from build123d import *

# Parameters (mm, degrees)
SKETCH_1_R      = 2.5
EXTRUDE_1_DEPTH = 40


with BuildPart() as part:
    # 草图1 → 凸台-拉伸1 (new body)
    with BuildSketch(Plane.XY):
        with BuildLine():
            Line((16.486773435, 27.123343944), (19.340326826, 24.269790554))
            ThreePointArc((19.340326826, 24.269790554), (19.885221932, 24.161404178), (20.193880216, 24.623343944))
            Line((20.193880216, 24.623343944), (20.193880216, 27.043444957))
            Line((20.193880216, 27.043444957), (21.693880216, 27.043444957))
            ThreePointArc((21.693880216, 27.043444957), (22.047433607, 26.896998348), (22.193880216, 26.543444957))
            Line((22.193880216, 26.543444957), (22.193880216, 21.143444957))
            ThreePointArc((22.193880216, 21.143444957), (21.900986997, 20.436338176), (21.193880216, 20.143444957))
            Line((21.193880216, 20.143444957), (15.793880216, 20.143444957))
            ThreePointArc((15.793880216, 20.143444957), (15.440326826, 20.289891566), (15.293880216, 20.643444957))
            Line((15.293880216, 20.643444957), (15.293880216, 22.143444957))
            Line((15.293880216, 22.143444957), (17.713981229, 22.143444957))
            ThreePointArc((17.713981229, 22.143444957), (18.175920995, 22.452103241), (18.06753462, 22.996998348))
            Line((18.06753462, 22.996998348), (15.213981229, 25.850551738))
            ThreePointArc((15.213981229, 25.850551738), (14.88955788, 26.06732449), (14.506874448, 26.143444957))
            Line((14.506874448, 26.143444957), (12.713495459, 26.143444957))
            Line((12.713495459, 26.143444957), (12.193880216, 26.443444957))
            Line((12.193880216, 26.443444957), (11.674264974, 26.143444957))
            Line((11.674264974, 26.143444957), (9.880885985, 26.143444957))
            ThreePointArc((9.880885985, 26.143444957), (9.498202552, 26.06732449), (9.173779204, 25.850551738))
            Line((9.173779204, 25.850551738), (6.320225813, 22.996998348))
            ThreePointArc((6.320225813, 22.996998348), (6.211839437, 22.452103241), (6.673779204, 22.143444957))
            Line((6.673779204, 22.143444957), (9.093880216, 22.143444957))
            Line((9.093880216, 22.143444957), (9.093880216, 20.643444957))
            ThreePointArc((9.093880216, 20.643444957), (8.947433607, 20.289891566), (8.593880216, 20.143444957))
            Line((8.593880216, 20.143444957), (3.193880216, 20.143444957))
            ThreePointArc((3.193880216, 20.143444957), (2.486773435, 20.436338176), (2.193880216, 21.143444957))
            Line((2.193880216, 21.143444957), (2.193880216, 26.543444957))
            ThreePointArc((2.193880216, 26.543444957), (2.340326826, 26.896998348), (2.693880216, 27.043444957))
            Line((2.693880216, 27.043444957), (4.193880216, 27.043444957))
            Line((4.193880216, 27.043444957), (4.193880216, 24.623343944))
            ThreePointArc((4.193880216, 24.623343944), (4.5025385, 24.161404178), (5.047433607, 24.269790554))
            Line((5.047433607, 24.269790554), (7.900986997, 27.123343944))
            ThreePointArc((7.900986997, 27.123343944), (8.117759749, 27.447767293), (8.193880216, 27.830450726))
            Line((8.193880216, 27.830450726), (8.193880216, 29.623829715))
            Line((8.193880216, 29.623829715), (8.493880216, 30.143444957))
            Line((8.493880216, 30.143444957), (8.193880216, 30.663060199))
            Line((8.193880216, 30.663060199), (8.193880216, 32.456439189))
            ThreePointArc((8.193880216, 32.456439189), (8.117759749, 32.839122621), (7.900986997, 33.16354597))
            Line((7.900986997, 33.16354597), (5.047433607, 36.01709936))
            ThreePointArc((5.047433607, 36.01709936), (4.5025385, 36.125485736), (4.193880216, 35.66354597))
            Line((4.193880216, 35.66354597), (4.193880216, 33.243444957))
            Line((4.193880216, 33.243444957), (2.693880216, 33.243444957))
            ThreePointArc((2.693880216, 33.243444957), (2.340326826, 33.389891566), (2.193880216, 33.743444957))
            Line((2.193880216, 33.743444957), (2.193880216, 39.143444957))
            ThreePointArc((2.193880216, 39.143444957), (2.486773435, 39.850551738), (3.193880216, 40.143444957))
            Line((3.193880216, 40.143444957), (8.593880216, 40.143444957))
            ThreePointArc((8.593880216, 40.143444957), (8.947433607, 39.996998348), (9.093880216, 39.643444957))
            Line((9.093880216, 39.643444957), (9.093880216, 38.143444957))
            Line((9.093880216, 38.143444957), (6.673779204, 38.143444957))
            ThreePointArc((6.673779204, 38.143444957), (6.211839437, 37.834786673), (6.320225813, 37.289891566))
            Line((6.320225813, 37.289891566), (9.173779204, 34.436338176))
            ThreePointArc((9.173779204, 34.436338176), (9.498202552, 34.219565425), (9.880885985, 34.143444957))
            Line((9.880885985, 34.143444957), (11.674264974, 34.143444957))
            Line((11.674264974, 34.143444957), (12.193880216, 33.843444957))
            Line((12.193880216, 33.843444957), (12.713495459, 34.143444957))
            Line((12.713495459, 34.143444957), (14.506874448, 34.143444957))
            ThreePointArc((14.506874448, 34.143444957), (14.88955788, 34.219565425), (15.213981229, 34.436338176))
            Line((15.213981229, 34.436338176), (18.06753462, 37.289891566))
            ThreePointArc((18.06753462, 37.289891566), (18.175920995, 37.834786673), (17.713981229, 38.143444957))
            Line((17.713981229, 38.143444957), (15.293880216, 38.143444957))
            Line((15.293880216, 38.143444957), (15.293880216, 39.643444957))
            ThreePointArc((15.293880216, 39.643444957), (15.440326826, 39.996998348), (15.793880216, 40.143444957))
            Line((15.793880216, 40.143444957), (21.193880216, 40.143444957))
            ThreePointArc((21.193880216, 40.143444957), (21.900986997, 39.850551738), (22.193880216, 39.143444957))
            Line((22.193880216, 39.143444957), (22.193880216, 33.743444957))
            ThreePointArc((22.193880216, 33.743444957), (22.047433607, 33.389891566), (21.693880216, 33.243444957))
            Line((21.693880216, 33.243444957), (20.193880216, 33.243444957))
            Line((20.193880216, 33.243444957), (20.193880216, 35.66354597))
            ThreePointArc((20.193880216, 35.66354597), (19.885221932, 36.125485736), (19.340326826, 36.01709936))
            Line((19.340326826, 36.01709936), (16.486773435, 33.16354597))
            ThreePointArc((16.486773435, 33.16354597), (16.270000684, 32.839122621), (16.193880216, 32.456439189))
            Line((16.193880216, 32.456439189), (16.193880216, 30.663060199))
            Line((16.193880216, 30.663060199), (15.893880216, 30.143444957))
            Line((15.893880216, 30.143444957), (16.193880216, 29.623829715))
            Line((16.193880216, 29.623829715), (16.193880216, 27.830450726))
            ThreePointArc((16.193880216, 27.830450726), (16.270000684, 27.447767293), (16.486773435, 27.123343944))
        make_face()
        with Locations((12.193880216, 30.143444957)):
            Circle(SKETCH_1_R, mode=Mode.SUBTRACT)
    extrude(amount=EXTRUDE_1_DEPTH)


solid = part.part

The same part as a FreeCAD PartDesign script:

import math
import FreeCAD as App
import Part
import Sketcher

V = App.Vector
Q = App.Units.Quantity

doc = App.newDocument("Part")
body = doc.addObject("PartDesign::Body", "Body")

sketch1 = body.newObject("Sketcher::SketchObject", "Sketch")
sketch1.AttachmentSupport = (doc.getObject("XY_Plane"), [""])
sketch1.MapMode = "FlatFace"
sketch1.addGeometry([
    Part.LineSegment(V(19.34, 24.27, 0), V(16.49, 27.12, 0)),
    Part.ArcOfCircle(Part.Circle(V(17.19, 27.83, 0), V(0, 0, 1), 1), math.radians(-180), math.radians(-135)),
    Part.LineSegment(V(16.19, 27.83, 0), V(16.19, 29.62, 0)),
    Part.LineSegment(V(16.19, 29.62, 0), V(15.89, 30.14, 0)),
    Part.LineSegment(V(15.89, 30.14, 0), V(16.19, 30.66, 0)),
    Part.LineSegment(V(16.19, 30.66, 0), V(16.19, 32.46, 0)),
    Part.ArcOfCircle(Part.Circle(V(17.19, 32.46, 0), V(0, 0, 1), 1), math.radians(135), math.radians(180)),
    Part.LineSegment(V(16.49, 33.16, 0), V(19.34, 36.02, 0)),
    Part.ArcOfCircle(Part.Circle(V(19.69, 35.66, 0), V(0, 0, 1), 0.5), math.radians(0), math.radians(135)),
    Part.LineSegment(V(20.19, 35.66, 0), V(20.19, 33.24, 0)),
    Part.LineSegment(V(20.19, 33.24, 0), V(21.69, 33.24, 0)),
    Part.ArcOfCircle(Part.Circle(V(21.69, 33.74, 0), V(0, 0, 1), 0.5), math.radians(-90), math.radians(0)),
    Part.LineSegment(V(22.19, 33.74, 0), V(22.19, 39.14, 0)),
    Part.ArcOfCircle(Part.Circle(V(21.19, 39.14, 0), V(0, 0, 1), 1), math.radians(0), math.radians(90)),
    Part.LineSegment(V(21.19, 40.14, 0), V(15.79, 40.14, 0)),
    Part.ArcOfCircle(Part.Circle(V(15.79, 39.64, 0), V(0, 0, 1), 0.5), math.radians(90), math.radians(180)),
    Part.LineSegment(V(15.29, 39.64, 0), V(15.29, 38.14, 0)),
    Part.LineSegment(V(15.29, 38.14, 0), V(17.71, 38.14, 0)),
    Part.ArcOfCircle(Part.Circle(V(17.71, 37.64, 0), V(0, 0, 1), 0.5), math.radians(-45), math.radians(90)),
    Part.LineSegment(V(18.07, 37.29, 0), V(15.21, 34.44, 0)),
    Part.ArcOfCircle(Part.Circle(V(14.51, 35.14, 0), V(0, 0, 1), 1), math.radians(-90), math.radians(-45)),
    Part.LineSegment(V(14.51, 34.14, 0), V(12.71, 34.14, 0)),
    Part.LineSegment(V(12.71, 34.14, 0), V(12.19, 33.84, 0)),
    Part.LineSegment(V(12.19, 33.84, 0), V(11.67, 34.14, 0)),
    Part.LineSegment(V(11.67, 34.14, 0), V(9.88, 34.14, 0)),
    Part.ArcOfCircle(Part.Circle(V(9.88, 35.14, 0), V(0, 0, 1), 1), math.radians(-135), math.radians(-90)),
    Part.LineSegment(V(9.17, 34.44, 0), V(6.32, 37.29, 0)),
    Part.ArcOfCircle(Part.Circle(V(6.67, 37.64, 0), V(0, 0, 1), 0.5), math.radians(90), math.radians(225)),
    Part.LineSegment(V(6.67, 38.14, 0), V(9.09, 38.14, 0)),
    Part.LineSegment(V(9.09, 38.14, 0), V(9.09, 39.64, 0)),
    Part.ArcOfCircle(Part.Circle(V(8.59, 39.64, 0), V(0, 0, 1), 0.5), math.radians(0), math.radians(90)),
    Part.LineSegment(V(8.59, 40.14, 0), V(3.19, 40.14, 0)),
    Part.ArcOfCircle(Part.Circle(V(3.19, 39.14, 0), V(0, 0, 1), 1), math.radians(90), math.radians(180)),
    Part.LineSegment(V(2.19, 39.14, 0), V(2.19, 33.74, 0)),
    Part.ArcOfCircle(Part.Circle(V(2.69, 33.74, 0), V(0, 0, 1), 0.5), math.radians(180), math.radians(270)),
    Part.LineSegment(V(2.69, 33.24, 0), V(4.19, 33.24, 0)),
    Part.LineSegment(V(4.19, 33.24, 0), V(4.19, 35.66, 0)),
    Part.ArcOfCircle(Part.Circle(V(4.69, 35.66, 0), V(0, 0, 1), 0.5), math.radians(45), math.radians(180)),
    Part.LineSegment(V(5.05, 36.02, 0), V(7.9, 33.16, 0)),
    Part.ArcOfCircle(Part.Circle(V(7.19, 32.46, 0), V(0, 0, 1), 1), math.radians(0), math.radians(45)),
    Part.LineSegment(V(8.19, 32.46, 0), V(8.19, 30.66, 0)),
    Part.LineSegment(V(8.19, 30.66, 0), V(8.49, 30.14, 0)),
    Part.LineSegment(V(8.49, 30.14, 0), V(8.19, 29.62, 0)),
    Part.LineSegment(V(8.19, 29.62, 0), V(8.19, 27.83, 0)),
    Part.ArcOfCircle(Part.Circle(V(7.19, 27.83, 0), V(0, 0, 1), 1), math.radians(-45), math.radians(0)),
    Part.LineSegment(V(7.9, 27.12, 0), V(5.05, 24.27, 0)),
    Part.ArcOfCircle(Part.Circle(V(4.69, 24.62, 0), V(0, 0, 1), 0.5), math.radians(180), math.radians(315)),
    Part.LineSegment(V(4.19, 24.62, 0), V(4.19, 27.04, 0)),
    Part.LineSegment(V(4.19, 27.04, 0), V(2.69, 27.04, 0)),
    Part.ArcOfCircle(Part.Circle(V(2.69, 26.54, 0), V(0, 0, 1), 0.5), math.radians(90), math.radians(180)),
    Part.LineSegment(V(2.19, 26.54, 0), V(2.19, 21.14, 0)),
    Part.ArcOfCircle(Part.Circle(V(3.19, 21.14, 0), V(0, 0, 1), 1), math.radians(-180), math.radians(-90)),
    Part.LineSegment(V(3.19, 20.14, 0), V(8.59, 20.14, 0)),
    Part.ArcOfCircle(Part.Circle(V(8.59, 20.64, 0), V(0, 0, 1), 0.5), math.radians(-90), math.radians(0)),
    Part.LineSegment(V(9.09, 20.64, 0), V(9.09, 22.14, 0)),
    Part.LineSegment(V(9.09, 22.14, 0), V(6.67, 22.14, 0)),
    Part.ArcOfCircle(Part.Circle(V(6.67, 22.64, 0), V(0, 0, 1), 0.5), math.radians(135), math.radians(270)),
    Part.LineSegment(V(6.32, 23, 0), V(9.17, 25.85, 0)),
    Part.ArcOfCircle(Part.Circle(V(9.88, 25.14, 0), V(0, 0, 1), 1), math.radians(90), math.radians(135)),
    Part.LineSegment(V(9.88, 26.14, 0), V(11.67, 26.14, 0)),
    Part.LineSegment(V(11.67, 26.14, 0), V(12.19, 26.44, 0)),
    Part.LineSegment(V(12.19, 26.44, 0), V(12.71, 26.14, 0)),
    Part.LineSegment(V(12.71, 26.14, 0), V(14.51, 26.14, 0)),
    Part.ArcOfCircle(Part.Circle(V(14.51, 25.14, 0), V(0, 0, 1), 1), math.radians(45), math.radians(90)),
    Part.LineSegment(V(15.21, 25.85, 0), V(18.07, 23, 0)),
    Part.ArcOfCircle(Part.Circle(V(17.71, 22.64, 0), V(0, 0, 1), 0.5), math.radians(-90), math.radians(45)),
    Part.LineSegment(V(17.71, 22.14, 0), V(15.29, 22.14, 0)),
    Part.LineSegment(V(15.29, 22.14, 0), V(15.29, 20.64, 0)),
    Part.ArcOfCircle(Part.Circle(V(15.79, 20.64, 0), V(0, 0, 1), 0.5), math.radians(180), math.radians(270)),
    Part.LineSegment(V(15.79, 20.14, 0), V(21.19, 20.14, 0)),
    Part.ArcOfCircle(Part.Circle(V(21.19, 21.14, 0), V(0, 0, 1), 1), math.radians(-90), math.radians(0)),
    Part.LineSegment(V(22.19, 21.14, 0), V(22.19, 26.54, 0)),
    Part.ArcOfCircle(Part.Circle(V(21.69, 26.54, 0), V(0, 0, 1), 0.5), math.radians(0), math.radians(90)),
    Part.LineSegment(V(21.69, 27.04, 0), V(20.19, 27.04, 0)),
    Part.LineSegment(V(20.19, 27.04, 0), V(20.19, 24.62, 0)),
    Part.ArcOfCircle(Part.Circle(V(19.69, 24.62, 0), V(0, 0, 1), 0.5), math.radians(-135), math.radians(0)),
    Part.Circle(V(12.19, 30.14, 0), V(0, 0, 1), 2.5),
], False)
sketch1.addConstraint([
    Sketcher.Constraint("Tangent", 0, 2, 1, 2),
    Sketcher.Constraint("Tangent", 1, 1, 2, 1),
    Sketcher.Constraint("Coincident", 2, 2, 3, 1),
    Sketcher.Constraint("Coincident", 3, 2, 4, 1),
    Sketcher.Constraint("Coincident", 4, 2, 5, 1),
    Sketcher.Constraint("Tangent", 5, 2, 6, 2),
    Sketcher.Constraint("Tangent", 6, 1, 7, 1),
    Sketcher.Constraint("Tangent", 7, 2, 8, 2),
    Sketcher.Constraint("Tangent", 8, 1, 9, 1),
    Sketcher.Constraint("Coincident", 9, 2, 10, 1),
    Sketcher.Constraint("Tangent", 10, 2, 11, 1),
    Sketcher.Constraint("Tangent", 11, 2, 12, 1),
    Sketcher.Constraint("Tangent", 12, 2, 13, 1),
    Sketcher.Constraint("Tangent", 13, 2, 14, 1),
    Sketcher.Constraint("Tangent", 14, 2, 15, 1),
    Sketcher.Constraint("Tangent", 15, 2, 16, 1),
    Sketcher.Constraint("Coincident", 16, 2, 17, 1),
    Sketcher.Constraint("Tangent", 17, 2, 18, 2),
    Sketcher.Constraint("Tangent", 18, 1, 19, 1),
    Sketcher.Constraint("Tangent", 19, 2, 20, 2),
    Sketcher.Constraint("Tangent", 20, 1, 21, 1),
    Sketcher.Constraint("Coincident", 21, 2, 22, 1),
    Sketcher.Constraint("Coincident", 22, 2, 23, 1),
    Sketcher.Constraint("Coincident", 23, 2, 24, 1),
    Sketcher.Constraint("Tangent", 24, 2, 25, 2),
    Sketcher.Constraint("Tangent", 25, 1, 26, 1),
    Sketcher.Constraint("Tangent", 26, 2, 27, 2),
    Sketcher.Constraint("Tangent", 27, 1, 28, 1),
    Sketcher.Constraint("Coincident", 28, 2, 29, 1),
    Sketcher.Constraint("Tangent", 29, 2, 30, 1),
    Sketcher.Constraint("Tangent", 30, 2, 31, 1),
    Sketcher.Constraint("Tangent", 31, 2, 32, 1),
    Sketcher.Constraint("Tangent", 32, 2, 33, 1),
    Sketcher.Constraint("Tangent", 33, 2, 34, 1),
    Sketcher.Constraint("Tangent", 34, 2, 35, 1),
    Sketcher.Constraint("Coincident", 35, 2, 36, 1),
    Sketcher.Constraint("Tangent", 36, 2, 37, 2),
    Sketcher.Constraint("Tangent", 37, 1, 38, 1),
    Sketcher.Constraint("Tangent", 38, 2, 39, 2),
    Sketcher.Constraint("Tangent", 39, 1, 40, 1),
    Sketcher.Constraint("Coincident", 40, 2, 41, 1),
    Sketcher.Constraint("Coincident", 41, 2, 42, 1),
    Sketcher.Constraint("Coincident", 42, 2, 43, 1),
    Sketcher.Constraint("Tangent", 43, 2, 44, 2),
    Sketcher.Constraint("Tangent", 44, 1, 45, 1),
    Sketcher.Constraint("Tangent", 45, 2, 46, 2),
    Sketcher.Constraint("Tangent", 46, 1, 47, 1),
    Sketcher.Constraint("Coincident", 47, 2, 48, 1),
    Sketcher.Constraint("Tangent", 48, 2, 49, 1),
    Sketcher.Constraint("Tangent", 49, 2, 50, 1),
    Sketcher.Constraint("Tangent", 50, 2, 51, 1),
    Sketcher.Constraint("Tangent", 51, 2, 52, 1),
    Sketcher.Constraint("Tangent", 52, 2, 53, 1),
    Sketcher.Constraint("Tangent", 53, 2, 54, 1),
    Sketcher.Constraint("Coincident", 54, 2, 55, 1),
    Sketcher.Constraint("Tangent", 55, 2, 56, 2),
    Sketcher.Constraint("Tangent", 56, 1, 57, 1),
    Sketcher.Constraint("Tangent", 57, 2, 58, 2),
    Sketcher.Constraint("Tangent", 58, 1, 59, 1),
    Sketcher.Constraint("Coincident", 59, 2, 60, 1),
    Sketcher.Constraint("Coincident", 60, 2, 61, 1),
    Sketcher.Constraint("Coincident", 61, 2, 62, 1),
    Sketcher.Constraint("Tangent", 62, 2, 63, 2),
    Sketcher.Constraint("Tangent", 63, 1, 64, 1),
    Sketcher.Constraint("Tangent", 64, 2, 65, 2),
    Sketcher.Constraint("Tangent", 65, 1, 66, 1),
    Sketcher.Constraint("Coincident", 66, 2, 67, 1),
    Sketcher.Constraint("Tangent", 67, 2, 68, 1),
    Sketcher.Constraint("Tangent", 68, 2, 69, 1),
    Sketcher.Constraint("Tangent", 69, 2, 70, 1),
    Sketcher.Constraint("Tangent", 70, 2, 71, 1),
    Sketcher.Constraint("Tangent", 71, 2, 72, 1),
    Sketcher.Constraint("Tangent", 72, 2, 73, 1),
    Sketcher.Constraint("Coincident", 73, 2, 74, 1),
    Sketcher.Constraint("Tangent", 74, 2, 75, 2),
    Sketcher.Constraint("Tangent", 75, 1, 0, 1),
    Sketcher.Constraint("Vertical", 2),
    Sketcher.Constraint("Vertical", 5),
    Sketcher.Constraint("Vertical", 9),
    Sketcher.Constraint("Horizontal", 10),
    Sketcher.Constraint("Vertical", 12),
    Sketcher.Constraint("Horizontal", 14),
    Sketcher.Constraint("Vertical", 16),
    Sketcher.Constraint("Horizontal", 17),
    Sketcher.Constraint("Horizontal", 21),
    Sketcher.Constraint("Horizontal", 24),
    Sketcher.Constraint("Horizontal", 28),
    Sketcher.Constraint("Vertical", 29),
    Sketcher.Constraint("Horizontal", 31),
    Sketcher.Constraint("Vertical", 33),
    Sketcher.Constraint("Horizontal", 35),
    Sketcher.Constraint("Vertical", 36),
    Sketcher.Constraint("Vertical", 40),
    Sketcher.Constraint("Vertical", 43),
    Sketcher.Constraint("Vertical", 47),
    Sketcher.Constraint("Horizontal", 48),
    Sketcher.Constraint("Vertical", 50),
    Sketcher.Constraint("Horizontal", 52),
    Sketcher.Constraint("Vertical", 54),
    Sketcher.Constraint("Horizontal", 55),
    Sketcher.Constraint("Horizontal", 59),
    Sketcher.Constraint("Horizontal", 62),
    Sketcher.Constraint("Horizontal", 66),
    Sketcher.Constraint("Vertical", 67),
    Sketcher.Constraint("Horizontal", 69),
    Sketcher.Constraint("Vertical", 71),
    Sketcher.Constraint("Horizontal", 73),
    Sketcher.Constraint("Vertical", 74),
    Sketcher.Constraint("Equal", 1, 6),
    Sketcher.Constraint("Equal", 8, 11),
    Sketcher.Constraint("Equal", 6, 13),
    Sketcher.Constraint("Equal", 11, 15),
    Sketcher.Constraint("Equal", 15, 18),
    Sketcher.Constraint("Equal", 13, 20),
    Sketcher.Constraint("Equal", 20, 25),
    Sketcher.Constraint("Equal", 18, 27),
    Sketcher.Constraint("Equal", 27, 30),
    Sketcher.Constraint("Equal", 25, 32),
    Sketcher.Constraint("Equal", 30, 34),
    Sketcher.Constraint("Equal", 34, 37),
    Sketcher.Constraint("Equal", 32, 39),
    Sketcher.Constraint("Equal", 39, 44),
    Sketcher.Constraint("Equal", 37, 46),
    Sketcher.Constraint("Equal", 46, 49),
    Sketcher.Constraint("Equal", 44, 51),
    Sketcher.Constraint("Equal", 49, 53),
    Sketcher.Constraint("Equal", 53, 56),
    Sketcher.Constraint("Equal", 51, 58),
    Sketcher.Constraint("Equal", 58, 63),
    Sketcher.Constraint("Equal", 56, 65),
    Sketcher.Constraint("Equal", 65, 68),
    Sketcher.Constraint("Equal", 63, 70),
    Sketcher.Constraint("Equal", 68, 72),
    Sketcher.Constraint("Equal", 72, 75),
    Sketcher.Constraint("Perpendicular", 0, 7),
    Sketcher.Constraint("Parallel", 7, 19),
    Sketcher.Constraint("Perpendicular", 3, 22),
    Sketcher.Constraint("Perpendicular", 4, 23),
    Sketcher.Constraint("Perpendicular", 19, 26),
    Sketcher.Constraint("Parallel", 26, 38),
    Sketcher.Constraint("Perpendicular", 22, 41),
    Sketcher.Constraint("Perpendicular", 23, 42),
    Sketcher.Constraint("Perpendicular", 38, 45),
    Sketcher.Constraint("Parallel", 45, 57),
    Sketcher.Constraint("Perpendicular", 41, 60),
    Sketcher.Constraint("Perpendicular", 42, 61),
    Sketcher.Constraint("Perpendicular", 57, 64),
    Sketcher.Constraint("Horizontal", 20, 3, 25, 3),
    Sketcher.Constraint("Horizontal", 18, 3, 27, 3),
    Sketcher.Constraint("Horizontal", 15, 3, 30, 3),
    Sketcher.Constraint("Horizontal", 11, 3, 34, 3),
    Sketcher.Constraint("Horizontal", 8, 3, 37, 3),
    Sketcher.Constraint("Horizontal", 6, 3, 39, 3),
    Sketcher.Constraint("Horizontal", 1, 3, 44, 3),
    Sketcher.Constraint("Horizontal", 58, 3, 63, 3),
    Sketcher.Constraint("Horizontal", 56, 3, 65, 3),
    Sketcher.Constraint("Horizontal", 53, 3, 68, 3),
    Sketcher.Constraint("Horizontal", 49, 3, 72, 3),
    Sketcher.Constraint("Horizontal", 46, 3, 75, 3),
    Sketcher.Constraint("Horizontal", 76, 3, 3, 2),
    Sketcher.Constraint("Horizontal", 19, 2, 25, 1),
    Sketcher.Constraint("Horizontal", 4, 2, 40, 2),
    Sketcher.Constraint("Horizontal", 3, 2, 41, 2),
    Sketcher.Constraint("Horizontal", 2, 2, 42, 2),
    Sketcher.Constraint("Vertical", 1, 3, 6, 3),
    Sketcher.Constraint("Vertical", 39, 3, 44, 3),
    Sketcher.Constraint("Vertical", 37, 3, 46, 3),
    Sketcher.Constraint("Vertical", 34, 3, 49, 3),
    Sketcher.Constraint("Vertical", 30, 3, 53, 3),
    Sketcher.Constraint("Vertical", 27, 3, 56, 3),
    Sketcher.Constraint("Vertical", 25, 3, 58, 3),
    Sketcher.Constraint("Vertical", 20, 3, 63, 3),
    Sketcher.Constraint("Vertical", 15, 3, 68, 3),
    Sketcher.Constraint("Vertical", 13, 3, 70, 3),
    Sketcher.Constraint("Vertical", 76, 3, 22, 2),
    Sketcher.Constraint("Vertical", 23, 2, 59, 2),
    Sketcher.Constraint("Vertical", 22, 2, 60, 2),
    Sketcher.Constraint("Equal", 21, 24),
    Sketcher.Constraint("Equal", 17, 28),
    Sketcher.Constraint("Equal", 14, 31),
    Sketcher.Constraint("Equal", 10, 35),
    Sketcher.Constraint("Equal", 62, 2),
    Sketcher.Constraint("Equal", 2, 5),
    Sketcher.Constraint("Equal", 66, 9),
    Sketcher.Constraint("Equal", 69, 12),
    Sketcher.Constraint("Equal", 73, 16),
    Sketcher.Constraint("Equal", 36, 47),
    Sketcher.Constraint("Equal", 33, 50),
    Sketcher.Constraint("Equal", 29, 54),
    Sketcher.Constraint("Equal", 7, 19),
    Sketcher.Constraint("Equal", 4, 22),
    Sketcher.Constraint("Diameter", 76, Q("5 mm")),
    Sketcher.Constraint("Radius", 1, Q("1 mm")),
    Sketcher.Constraint("Radius", 8, Q("0.5 mm")),
    Sketcher.Constraint("Angle", 3, Q("120 deg")),
    Sketcher.Constraint("DistanceX", 10, 1, 10, 2, Q("1.5 mm")),
    Sketcher.Constraint("DistanceX", 14, 2, 14, 1, Q("5.4 mm")),
    Sketcher.Constraint("Distance", 3, Q("0.6 mm")),
    Sketcher.Constraint("DistanceX", 17, 1, 17, 2, Q("2.420101 mm")),
    Sketcher.Constraint("DistanceY", -1, 1, 56, 1, Q("22.996998 mm")),
    Sketcher.Constraint("DistanceX", 21, 2, 21, 1, Q("1.793379 mm")),
    Sketcher.Constraint("DistanceY", -1, 1, 7, 2, Q("36.017099 mm")),
    Sketcher.Constraint("DistanceX", -1, 1, 1, 3, Q("17.19388 mm")),
])
pad1 = body.newObject("PartDesign::Pad", "Pad")
pad1.Profile = sketch1
pad1.Length = 40

doc.recompute()
